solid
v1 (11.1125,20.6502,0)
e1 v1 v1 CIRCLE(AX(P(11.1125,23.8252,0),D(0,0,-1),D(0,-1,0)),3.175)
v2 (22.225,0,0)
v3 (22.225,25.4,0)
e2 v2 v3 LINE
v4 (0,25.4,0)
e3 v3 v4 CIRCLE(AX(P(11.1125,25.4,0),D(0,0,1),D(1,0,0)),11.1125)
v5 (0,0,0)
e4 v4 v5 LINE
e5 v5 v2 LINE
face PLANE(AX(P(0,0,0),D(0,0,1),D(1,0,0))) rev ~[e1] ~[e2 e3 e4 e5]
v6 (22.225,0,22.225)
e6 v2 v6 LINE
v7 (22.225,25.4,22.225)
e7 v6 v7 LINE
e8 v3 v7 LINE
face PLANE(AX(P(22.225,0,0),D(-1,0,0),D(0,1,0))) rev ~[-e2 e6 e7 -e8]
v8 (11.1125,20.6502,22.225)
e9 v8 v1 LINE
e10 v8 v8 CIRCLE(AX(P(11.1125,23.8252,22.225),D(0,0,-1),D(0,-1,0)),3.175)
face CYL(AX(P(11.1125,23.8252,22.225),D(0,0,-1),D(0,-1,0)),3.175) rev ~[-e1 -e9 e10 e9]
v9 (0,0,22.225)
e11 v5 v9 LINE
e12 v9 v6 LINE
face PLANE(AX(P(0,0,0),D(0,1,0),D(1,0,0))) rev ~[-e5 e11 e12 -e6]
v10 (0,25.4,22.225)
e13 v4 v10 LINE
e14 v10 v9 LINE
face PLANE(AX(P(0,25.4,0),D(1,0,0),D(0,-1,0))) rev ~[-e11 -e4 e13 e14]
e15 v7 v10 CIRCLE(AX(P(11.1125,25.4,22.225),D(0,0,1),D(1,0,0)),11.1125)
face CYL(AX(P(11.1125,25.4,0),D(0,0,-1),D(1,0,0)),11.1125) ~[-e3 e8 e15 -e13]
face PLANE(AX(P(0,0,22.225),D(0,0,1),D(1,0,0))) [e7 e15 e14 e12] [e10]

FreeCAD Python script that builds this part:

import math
import FreeCAD as App
import Part
import Sketcher
from FreeCAD import Vector
Q = App.Units.Quantity

doc = App.newDocument("Part")
params = doc.addObject("Spreadsheet::Sheet", "Params")
for row, (alias, value) in enumerate([
    ("sketch1_height", "1 in"),
    ("sketch1_radius", "0.4375 in"),
    ("pad1_length", "0.875 in"),
    ("sketch2_diameter", "0.25 in"),
    ("hole_diameter", "0.25 in"),
], start=1):
    params.set(f"A{row}", alias)
    params.set(f"B{row}", "=" + value)
    params.setAlias(f"B{row}", alias)

body = doc.addObject("PartDesign::Body", "Body")

# Sketch on XY plane
sketch1 = body.newObject("Sketcher::SketchObject", "Sketch")
sketch1.AttachmentSupport = (doc.getObject("XY_Plane"), [""])
sketch1.MapMode = "FlatFace"
sketch1.addGeometry([
    Part.LineSegment(Vector(0, 25, 0), Vector(0, 0, 0)),
    Part.LineSegment(Vector(0, 0, 0), Vector(22, 0, 0)),
    Part.LineSegment(Vector(22, 0, 0), Vector(22, 25, 0)),
    Part.ArcOfCircle(Part.Circle(Vector(11, 25, 0), Vector(0, 0, 1), 11), math.radians(0), math.radians(180)),
], False)
sketch1.addConstraint([
    Sketcher.Constraint("Coincident", 0, 2, 1, 1),
    Sketcher.Constraint("Coincident", 1, 2, 2, 1),
    Sketcher.Constraint("Tangent", 2, 2, 3, 1),
    Sketcher.Constraint("Tangent", 3, 2, 0, 1),
    Sketcher.Constraint("Vertical", 0),
    Sketcher.Constraint("Horizontal", 1),
    Sketcher.Constraint("Vertical", 2),
    Sketcher.Constraint("Coincident", 0, 2, -1, 1),
    Sketcher.Constraint("DistanceY", 0, 2, 0, 1, Q("1 in")),
    Sketcher.Constraint("Radius", 3, Q("0.4375 in")),
])
sketch1.setExpression("Constraints[8]", "Params.sketch1_height")
sketch1.setExpression("Constraints[9]", "Params.sketch1_radius")
pad1 = body.newObject("PartDesign::Pad", "Pad")
pad1.Profile = sketch1
pad1.setExpression("Length", "Params.pad1_length")

# Sketch on XY plane
sketch2 = body.newObject("Sketcher::SketchObject", "Sketch001")
sketch2.AttachmentSupport = (doc.getObject("XY_Plane"), [""])
sketch2.MapMode = "FlatFace"
sketch2.AttachmentOffset = App.Placement(Vector(0, 0, 0.875 * 25.4), App.Rotation())
sketch2.addGeometry(Part.Circle(Vector(11.1, 23.8, 0), Vector(0, 0, 1), 3.2), False)
sketch2.addConstraint([
    Sketcher.Constraint("Diameter", 0, Q("0.25 in")),
    Sketcher.Constraint("DistanceX", -1, 1, 0, 3, Q("0.4375 in")),
    Sketcher.Constraint("DistanceY", -1, 1, 0, 3, Q("0.938 in")),
])
sketch2.setExpression("Constraints[0]", "Params.sketch2_diameter")
doc.recompute()
hole = body.newObject("PartDesign::Hole", "Hole")
hole.Profile = sketch2
hole.ThreadType = "None"
hole.setExpression("Diameter", "Params.hole_diameter")
hole.DepthType = "ThroughAll"

doc.recompute()
